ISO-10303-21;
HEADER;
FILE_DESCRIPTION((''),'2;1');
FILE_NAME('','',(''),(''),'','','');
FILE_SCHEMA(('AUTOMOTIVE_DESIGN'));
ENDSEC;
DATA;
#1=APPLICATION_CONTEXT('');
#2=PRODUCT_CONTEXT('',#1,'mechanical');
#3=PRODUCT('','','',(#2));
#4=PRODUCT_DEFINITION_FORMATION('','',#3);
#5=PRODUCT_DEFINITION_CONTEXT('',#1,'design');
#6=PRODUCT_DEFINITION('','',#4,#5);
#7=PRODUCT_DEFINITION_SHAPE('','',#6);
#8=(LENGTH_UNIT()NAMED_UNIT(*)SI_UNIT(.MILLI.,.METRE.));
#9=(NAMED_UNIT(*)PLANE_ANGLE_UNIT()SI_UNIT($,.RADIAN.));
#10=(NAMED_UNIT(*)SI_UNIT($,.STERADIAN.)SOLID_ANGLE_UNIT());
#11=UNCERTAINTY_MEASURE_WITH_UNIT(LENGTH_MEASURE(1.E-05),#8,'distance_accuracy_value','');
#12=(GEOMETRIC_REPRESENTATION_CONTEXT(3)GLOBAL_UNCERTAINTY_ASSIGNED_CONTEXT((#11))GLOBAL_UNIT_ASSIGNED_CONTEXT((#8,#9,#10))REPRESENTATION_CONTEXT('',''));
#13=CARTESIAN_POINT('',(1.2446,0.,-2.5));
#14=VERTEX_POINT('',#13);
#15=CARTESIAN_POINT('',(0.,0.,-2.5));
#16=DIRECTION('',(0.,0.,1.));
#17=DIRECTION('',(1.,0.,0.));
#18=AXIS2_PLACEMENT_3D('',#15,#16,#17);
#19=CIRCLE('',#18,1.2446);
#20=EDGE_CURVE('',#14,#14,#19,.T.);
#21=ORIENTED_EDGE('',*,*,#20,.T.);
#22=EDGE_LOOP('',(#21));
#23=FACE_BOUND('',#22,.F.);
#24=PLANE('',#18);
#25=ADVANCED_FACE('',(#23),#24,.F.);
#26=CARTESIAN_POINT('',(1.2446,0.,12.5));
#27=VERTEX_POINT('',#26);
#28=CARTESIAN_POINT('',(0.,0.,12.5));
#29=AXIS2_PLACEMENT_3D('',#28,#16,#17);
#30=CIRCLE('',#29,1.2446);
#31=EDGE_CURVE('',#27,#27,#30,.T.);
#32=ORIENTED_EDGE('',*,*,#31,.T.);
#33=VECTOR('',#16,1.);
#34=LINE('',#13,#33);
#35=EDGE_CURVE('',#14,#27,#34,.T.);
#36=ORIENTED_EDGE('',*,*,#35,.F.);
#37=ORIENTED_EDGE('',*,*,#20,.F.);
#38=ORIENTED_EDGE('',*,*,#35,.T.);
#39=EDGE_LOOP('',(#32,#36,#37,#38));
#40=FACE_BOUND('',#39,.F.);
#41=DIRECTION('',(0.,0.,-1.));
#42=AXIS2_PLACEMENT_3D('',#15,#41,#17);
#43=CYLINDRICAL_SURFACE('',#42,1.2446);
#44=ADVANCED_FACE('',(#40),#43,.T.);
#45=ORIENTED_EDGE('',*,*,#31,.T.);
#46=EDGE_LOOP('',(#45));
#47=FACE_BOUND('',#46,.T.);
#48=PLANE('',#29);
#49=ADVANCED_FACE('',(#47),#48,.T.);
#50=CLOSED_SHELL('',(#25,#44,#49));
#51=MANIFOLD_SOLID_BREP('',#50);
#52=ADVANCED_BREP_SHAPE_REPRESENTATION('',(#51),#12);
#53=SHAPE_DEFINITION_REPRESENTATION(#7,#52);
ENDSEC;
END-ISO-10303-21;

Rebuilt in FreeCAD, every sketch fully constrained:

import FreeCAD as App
import Part
import Sketcher
Q = App.Units.Quantity

doc = App.newDocument("Part")
body = doc.addObject("PartDesign::Body", "Body")

sketch1 = body.newObject("Sketcher::SketchObject", "Sketch")
sketch1.AttachmentSupport = (doc.getObject("XY_Plane"), [""])
sketch1.MapMode = "FlatFace"
sketch1.AttachmentOffset = App.Placement(App.Vector(0, 0, -2.5), App.Rotation())
sketch1.addGeometry(Part.Circle(App.Vector(0, 0, 0), App.Vector(0, 0, 1), 1.2446), False)
sketch1.addConstraint(Sketcher.Constraint("Coincident", 0, 3, -1, 1))
sketch1.addConstraint(Sketcher.Constraint("Diameter", 0, Q("2.4892 mm")))
pad1 = body.newObject("PartDesign::Pad", "Pad")
pad1.Profile = sketch1
pad1.Length = 15

doc.recompute()
